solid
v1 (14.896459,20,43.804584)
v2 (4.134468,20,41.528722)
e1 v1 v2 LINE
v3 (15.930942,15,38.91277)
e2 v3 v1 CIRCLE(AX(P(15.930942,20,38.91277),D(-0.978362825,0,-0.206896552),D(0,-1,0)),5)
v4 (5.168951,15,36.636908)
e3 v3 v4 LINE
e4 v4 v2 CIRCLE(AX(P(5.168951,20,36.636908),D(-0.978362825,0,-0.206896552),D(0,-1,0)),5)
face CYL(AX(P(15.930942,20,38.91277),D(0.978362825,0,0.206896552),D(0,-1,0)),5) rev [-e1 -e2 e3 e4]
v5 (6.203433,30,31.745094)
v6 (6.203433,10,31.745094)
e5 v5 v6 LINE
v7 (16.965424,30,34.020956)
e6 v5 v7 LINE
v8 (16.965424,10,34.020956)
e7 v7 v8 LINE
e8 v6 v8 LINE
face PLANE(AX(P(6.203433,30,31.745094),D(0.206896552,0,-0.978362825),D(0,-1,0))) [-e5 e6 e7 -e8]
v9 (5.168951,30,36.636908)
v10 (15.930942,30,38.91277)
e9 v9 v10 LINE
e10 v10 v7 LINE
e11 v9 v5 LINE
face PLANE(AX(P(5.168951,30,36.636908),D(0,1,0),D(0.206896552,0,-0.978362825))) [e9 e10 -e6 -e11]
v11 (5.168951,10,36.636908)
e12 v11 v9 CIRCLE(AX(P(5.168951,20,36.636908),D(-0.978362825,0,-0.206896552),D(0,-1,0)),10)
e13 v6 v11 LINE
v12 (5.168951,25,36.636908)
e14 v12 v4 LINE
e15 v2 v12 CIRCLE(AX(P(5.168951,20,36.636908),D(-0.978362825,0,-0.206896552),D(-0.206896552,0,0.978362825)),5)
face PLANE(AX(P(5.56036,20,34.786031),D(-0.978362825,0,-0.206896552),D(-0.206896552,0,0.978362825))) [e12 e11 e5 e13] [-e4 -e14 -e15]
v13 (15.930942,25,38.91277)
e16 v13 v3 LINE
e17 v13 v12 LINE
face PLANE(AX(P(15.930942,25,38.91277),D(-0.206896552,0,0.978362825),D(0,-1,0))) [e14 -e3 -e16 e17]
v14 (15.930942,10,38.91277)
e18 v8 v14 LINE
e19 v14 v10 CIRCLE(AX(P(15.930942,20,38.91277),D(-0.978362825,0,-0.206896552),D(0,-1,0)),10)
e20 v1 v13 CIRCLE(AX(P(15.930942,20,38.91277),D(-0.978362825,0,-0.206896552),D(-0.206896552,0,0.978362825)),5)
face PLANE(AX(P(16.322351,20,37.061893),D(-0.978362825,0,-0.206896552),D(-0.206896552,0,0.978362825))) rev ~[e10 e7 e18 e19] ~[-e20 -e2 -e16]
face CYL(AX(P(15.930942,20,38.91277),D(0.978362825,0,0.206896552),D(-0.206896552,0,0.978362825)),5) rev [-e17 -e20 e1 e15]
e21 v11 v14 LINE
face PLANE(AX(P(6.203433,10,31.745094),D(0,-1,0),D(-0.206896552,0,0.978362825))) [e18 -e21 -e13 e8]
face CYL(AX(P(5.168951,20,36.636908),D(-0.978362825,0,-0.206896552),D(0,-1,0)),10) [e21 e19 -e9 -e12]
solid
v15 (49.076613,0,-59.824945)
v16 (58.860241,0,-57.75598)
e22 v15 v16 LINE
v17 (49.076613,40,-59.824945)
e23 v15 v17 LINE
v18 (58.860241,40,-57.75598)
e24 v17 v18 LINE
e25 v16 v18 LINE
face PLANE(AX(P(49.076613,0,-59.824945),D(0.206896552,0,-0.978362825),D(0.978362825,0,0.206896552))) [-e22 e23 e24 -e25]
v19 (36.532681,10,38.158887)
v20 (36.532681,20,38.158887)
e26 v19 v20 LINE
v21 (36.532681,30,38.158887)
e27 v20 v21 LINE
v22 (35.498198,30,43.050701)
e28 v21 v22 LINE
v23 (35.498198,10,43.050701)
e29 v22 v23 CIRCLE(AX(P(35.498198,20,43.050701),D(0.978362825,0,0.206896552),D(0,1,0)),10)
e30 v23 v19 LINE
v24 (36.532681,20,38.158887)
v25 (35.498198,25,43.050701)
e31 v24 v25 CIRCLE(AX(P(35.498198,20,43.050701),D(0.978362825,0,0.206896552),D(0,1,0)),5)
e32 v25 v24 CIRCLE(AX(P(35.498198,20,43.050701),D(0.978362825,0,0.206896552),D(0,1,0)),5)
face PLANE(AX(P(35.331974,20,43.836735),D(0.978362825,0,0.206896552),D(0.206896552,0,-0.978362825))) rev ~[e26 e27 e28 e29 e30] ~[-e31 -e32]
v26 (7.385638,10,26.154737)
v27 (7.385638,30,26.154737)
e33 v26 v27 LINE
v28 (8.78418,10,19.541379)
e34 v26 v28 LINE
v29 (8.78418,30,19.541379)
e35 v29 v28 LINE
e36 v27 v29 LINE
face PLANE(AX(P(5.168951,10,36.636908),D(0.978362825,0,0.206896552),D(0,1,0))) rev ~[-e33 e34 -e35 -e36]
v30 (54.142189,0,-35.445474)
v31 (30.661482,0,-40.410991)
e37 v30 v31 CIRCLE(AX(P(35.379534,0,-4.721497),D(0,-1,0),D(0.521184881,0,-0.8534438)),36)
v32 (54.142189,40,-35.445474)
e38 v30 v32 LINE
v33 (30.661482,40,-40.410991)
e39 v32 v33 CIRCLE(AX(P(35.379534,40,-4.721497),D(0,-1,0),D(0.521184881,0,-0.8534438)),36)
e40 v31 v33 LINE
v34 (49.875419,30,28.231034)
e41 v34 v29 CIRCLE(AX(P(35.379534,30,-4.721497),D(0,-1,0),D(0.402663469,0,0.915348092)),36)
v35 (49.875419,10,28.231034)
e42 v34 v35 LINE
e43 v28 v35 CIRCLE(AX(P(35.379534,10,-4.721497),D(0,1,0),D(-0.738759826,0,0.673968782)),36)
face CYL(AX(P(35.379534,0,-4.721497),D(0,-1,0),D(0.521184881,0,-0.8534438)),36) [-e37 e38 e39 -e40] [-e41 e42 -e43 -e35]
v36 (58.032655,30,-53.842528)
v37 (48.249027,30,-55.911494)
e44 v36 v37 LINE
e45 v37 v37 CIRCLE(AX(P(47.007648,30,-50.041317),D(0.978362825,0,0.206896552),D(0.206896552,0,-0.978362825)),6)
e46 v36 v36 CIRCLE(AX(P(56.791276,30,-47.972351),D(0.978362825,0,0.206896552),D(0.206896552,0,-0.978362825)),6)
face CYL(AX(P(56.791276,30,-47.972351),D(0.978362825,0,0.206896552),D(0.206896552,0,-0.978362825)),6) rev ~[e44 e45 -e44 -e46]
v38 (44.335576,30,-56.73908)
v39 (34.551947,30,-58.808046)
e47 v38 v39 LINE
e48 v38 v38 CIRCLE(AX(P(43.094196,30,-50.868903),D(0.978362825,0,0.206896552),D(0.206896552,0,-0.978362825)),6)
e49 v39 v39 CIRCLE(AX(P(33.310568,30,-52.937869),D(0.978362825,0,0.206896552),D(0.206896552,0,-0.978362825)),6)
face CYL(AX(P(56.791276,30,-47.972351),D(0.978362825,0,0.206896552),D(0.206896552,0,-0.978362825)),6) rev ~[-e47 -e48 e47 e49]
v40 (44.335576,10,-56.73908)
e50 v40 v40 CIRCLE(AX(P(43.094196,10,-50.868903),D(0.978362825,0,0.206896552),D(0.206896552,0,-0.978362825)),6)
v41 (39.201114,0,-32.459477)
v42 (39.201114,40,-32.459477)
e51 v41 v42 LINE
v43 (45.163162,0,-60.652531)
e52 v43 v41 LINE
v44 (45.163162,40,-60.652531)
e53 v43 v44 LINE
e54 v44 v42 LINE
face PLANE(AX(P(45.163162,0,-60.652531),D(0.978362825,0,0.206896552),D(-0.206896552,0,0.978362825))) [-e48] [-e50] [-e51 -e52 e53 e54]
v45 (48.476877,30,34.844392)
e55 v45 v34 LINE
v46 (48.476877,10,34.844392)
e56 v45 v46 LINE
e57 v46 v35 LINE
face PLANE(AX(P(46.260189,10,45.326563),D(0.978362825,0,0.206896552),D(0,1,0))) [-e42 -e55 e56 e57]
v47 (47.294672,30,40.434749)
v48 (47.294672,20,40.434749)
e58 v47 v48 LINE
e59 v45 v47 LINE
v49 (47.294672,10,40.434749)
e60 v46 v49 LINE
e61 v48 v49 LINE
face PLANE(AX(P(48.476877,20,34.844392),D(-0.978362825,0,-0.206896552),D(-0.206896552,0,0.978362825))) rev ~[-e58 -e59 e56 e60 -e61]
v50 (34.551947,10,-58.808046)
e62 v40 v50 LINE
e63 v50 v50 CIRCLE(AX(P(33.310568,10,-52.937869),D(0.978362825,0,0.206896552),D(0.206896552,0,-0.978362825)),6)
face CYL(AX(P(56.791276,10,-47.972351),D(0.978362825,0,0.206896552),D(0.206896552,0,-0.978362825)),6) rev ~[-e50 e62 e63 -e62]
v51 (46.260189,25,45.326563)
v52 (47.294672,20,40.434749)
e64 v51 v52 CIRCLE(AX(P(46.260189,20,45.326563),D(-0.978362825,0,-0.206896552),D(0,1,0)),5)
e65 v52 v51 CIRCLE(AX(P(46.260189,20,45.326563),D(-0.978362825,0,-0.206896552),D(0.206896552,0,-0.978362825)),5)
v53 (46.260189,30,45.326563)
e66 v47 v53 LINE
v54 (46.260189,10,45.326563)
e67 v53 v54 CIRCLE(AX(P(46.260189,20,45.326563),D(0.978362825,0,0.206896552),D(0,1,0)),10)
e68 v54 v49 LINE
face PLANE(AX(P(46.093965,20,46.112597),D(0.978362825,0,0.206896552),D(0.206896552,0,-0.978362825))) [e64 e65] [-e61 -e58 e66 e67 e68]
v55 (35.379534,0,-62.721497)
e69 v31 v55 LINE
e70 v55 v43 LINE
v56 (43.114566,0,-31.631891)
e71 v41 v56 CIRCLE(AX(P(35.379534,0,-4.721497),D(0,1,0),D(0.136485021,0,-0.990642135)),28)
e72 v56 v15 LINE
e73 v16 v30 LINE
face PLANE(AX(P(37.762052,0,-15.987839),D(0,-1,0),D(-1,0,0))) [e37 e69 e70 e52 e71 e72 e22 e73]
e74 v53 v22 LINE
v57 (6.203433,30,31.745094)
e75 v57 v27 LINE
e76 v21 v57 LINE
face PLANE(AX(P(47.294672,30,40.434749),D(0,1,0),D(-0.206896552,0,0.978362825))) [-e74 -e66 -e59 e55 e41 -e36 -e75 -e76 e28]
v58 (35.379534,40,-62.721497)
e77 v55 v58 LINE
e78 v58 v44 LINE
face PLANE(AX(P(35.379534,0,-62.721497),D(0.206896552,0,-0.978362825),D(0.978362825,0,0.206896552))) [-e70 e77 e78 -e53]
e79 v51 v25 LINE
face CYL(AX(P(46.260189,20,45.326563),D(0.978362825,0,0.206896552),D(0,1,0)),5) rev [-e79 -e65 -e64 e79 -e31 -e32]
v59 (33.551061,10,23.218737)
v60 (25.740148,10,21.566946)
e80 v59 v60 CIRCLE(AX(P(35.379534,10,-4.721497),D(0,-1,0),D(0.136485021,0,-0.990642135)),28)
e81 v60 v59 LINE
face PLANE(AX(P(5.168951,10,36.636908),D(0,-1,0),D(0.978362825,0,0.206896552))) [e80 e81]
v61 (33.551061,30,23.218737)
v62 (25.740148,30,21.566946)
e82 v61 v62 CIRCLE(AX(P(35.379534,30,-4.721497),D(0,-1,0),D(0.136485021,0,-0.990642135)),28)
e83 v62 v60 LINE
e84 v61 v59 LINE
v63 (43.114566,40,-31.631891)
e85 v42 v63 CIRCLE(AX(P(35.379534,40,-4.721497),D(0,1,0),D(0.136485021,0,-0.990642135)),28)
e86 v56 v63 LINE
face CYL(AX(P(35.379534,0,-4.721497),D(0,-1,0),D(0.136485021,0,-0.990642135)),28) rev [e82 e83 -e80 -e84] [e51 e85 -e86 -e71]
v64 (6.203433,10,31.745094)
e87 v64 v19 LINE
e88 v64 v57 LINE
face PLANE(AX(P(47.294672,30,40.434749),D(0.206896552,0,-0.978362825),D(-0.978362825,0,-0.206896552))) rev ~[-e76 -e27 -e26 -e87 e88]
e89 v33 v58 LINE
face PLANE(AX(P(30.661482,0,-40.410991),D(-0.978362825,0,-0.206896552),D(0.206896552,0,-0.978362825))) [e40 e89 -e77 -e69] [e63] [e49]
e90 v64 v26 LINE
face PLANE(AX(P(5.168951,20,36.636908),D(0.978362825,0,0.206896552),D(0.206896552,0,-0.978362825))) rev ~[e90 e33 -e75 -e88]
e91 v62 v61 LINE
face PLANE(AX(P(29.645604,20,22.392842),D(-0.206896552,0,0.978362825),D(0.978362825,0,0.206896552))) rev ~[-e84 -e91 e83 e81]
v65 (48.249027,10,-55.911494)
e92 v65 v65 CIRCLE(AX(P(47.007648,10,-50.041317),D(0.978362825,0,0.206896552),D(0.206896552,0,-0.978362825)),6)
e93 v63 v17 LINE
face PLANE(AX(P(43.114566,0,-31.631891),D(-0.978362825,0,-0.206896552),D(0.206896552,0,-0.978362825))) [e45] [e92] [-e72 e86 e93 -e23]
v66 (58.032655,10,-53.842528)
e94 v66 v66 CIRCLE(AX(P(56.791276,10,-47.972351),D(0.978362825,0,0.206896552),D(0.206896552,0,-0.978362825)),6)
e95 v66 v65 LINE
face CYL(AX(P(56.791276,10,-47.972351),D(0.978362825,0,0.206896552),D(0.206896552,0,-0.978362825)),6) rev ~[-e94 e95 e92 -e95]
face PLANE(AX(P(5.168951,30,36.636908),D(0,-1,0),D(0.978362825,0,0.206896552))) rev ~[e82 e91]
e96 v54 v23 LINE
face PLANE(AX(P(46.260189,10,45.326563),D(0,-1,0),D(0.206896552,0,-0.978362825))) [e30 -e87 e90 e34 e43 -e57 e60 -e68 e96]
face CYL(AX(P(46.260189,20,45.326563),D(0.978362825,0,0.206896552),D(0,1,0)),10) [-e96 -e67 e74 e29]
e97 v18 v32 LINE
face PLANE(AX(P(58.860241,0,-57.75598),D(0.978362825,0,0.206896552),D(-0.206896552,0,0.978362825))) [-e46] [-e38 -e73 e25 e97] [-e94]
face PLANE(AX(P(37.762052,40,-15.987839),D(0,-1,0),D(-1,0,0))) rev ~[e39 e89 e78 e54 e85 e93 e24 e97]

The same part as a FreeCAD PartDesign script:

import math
import FreeCAD as App
import Part
import Sketcher

V = App.Vector

doc = App.newDocument("Part")
params = doc.addObject("Spreadsheet::Sheet", "Params")
for row, (alias, value) in enumerate([
    ("sketch1_radius", "36 mm"),
    ("sketch1_radius2", "28 mm"),
    ("sketch1_length", "10 mm"),
    ("pad1_length", "40 mm"),
    ("sketch2_diameter", "12 mm"),
    ("pocket1_length", "40 mm"),
    ("sketch3_length", "42 mm"),
    ("pad2_length", "20 mm"),
    ("sketch4_width", "42 mm"),
    ("sketch4_height", "20 mm"),
    ("pad3_length", "19 mm"),
    ("sketch5_length", "42 mm"),
    ("sketch5_length2", "5 mm"),
    ("sketch6_radius", "10 mm"),
    ("sketch6_radius2", "5 mm"),
    ("sketch6_width", "5 mm"),
    ("pad4_length", "11 mm"),
    ("sketch7_radius", "5 mm"),
    ("sketch8_radius", "10 mm"),
    ("sketch8_width", "5 mm"),
    ("pad5_length", "11 mm"),
    ("sketch9_radius", "5 mm"),
    ("pocket4_length", "11 mm"),
], start=1):
    params.set(f"A{row}", alias)
    params.set(f"B{row}", "=" + value)
    params.setAlias(f"B{row}", alias)

body = doc.addObject("PartDesign::Body", "Body")

sketch1 = body.newObject("Sketcher::SketchObject", "Sketch")
sketch1.AttachmentSupport = (doc.getObject("XZ_Plane"), [""])
sketch1.MapMode = "FlatFace"
sketch1.addGeometry([
    Part.LineSegment(V(35.4, -62.7, 0), V(30.7, -40.4, 0)),
    Part.ArcOfCircle(Part.Circle(V(35.4, -4.7, 0), V(0, 0, 1), 36), math.radians(-59), math.radians(262)),
    Part.LineSegment(V(54.1, -35.4, 0), V(58.9, -57.8, 0)),
    Part.LineSegment(V(58.9, -57.8, 0), V(49.1, -59.8, 0)),
    Part.LineSegment(V(49.1, -59.8, 0), V(43.1, -31.6, 0)),
    Part.ArcOfCircle(Part.Circle(V(35.4, -4.7, 0), V(0, 0, 1), 28), math.radians(-74), math.radians(278)),
    Part.LineSegment(V(39.2, -32.5, 0), V(45.2, -60.7, 0)),
    Part.LineSegment(V(45.2, -60.7, 0), V(35.4, -62.7, 0)),
], False)
sketch1.addConstraint([
    Sketcher.Constraint("Coincident", 0, 2, 1, 2),
    Sketcher.Constraint("Coincident", 1, 1, 2, 1),
    Sketcher.Constraint("Coincident", 2, 2, 3, 1),
    Sketcher.Constraint("Coincident", 3, 2, 4, 1),
    Sketcher.Constraint("Coincident", 4, 2, 5, 1),
    Sketcher.Constraint("Coincident", 5, 2, 6, 1),
    Sketcher.Constraint("Coincident", 6, 2, 7, 1),
    Sketcher.Constraint("Coincident", 7, 2, 0, 1),
    Sketcher.Constraint("Coincident", 5, 3, 1, 3),
    Sketcher.Constraint("Parallel", 0, 2),
    Sketcher.Constraint("Perpendicular", 2, 3),
    Sketcher.Constraint("Perpendicular", 3, 4),
    Sketcher.Constraint("Parallel", 4, 6),
    Sketcher.Constraint("Perpendicular", 6, 7),
    Sketcher.Constraint("Vertical", 5, 3, 7, 2),
    Sketcher.Constraint("Equal", 0, 2),
    Sketcher.Constraint("Equal", 4, 6),
    Sketcher.Constraint("Equal", 3, 7),
    Sketcher.Constraint("Radius", 1, 36.0),
    Sketcher.Constraint("Radius", 5, 28.0),
    Sketcher.Constraint("Distance", 3, 10.0),
    Sketcher.Constraint("DistanceY", 0, 2, 4, 2, 8.7791),
    Sketcher.Constraint("Distance", 0, 22.803918),
    Sketcher.Constraint("DistanceX", -1, 1, 0, 2, 30.661482),
    Sketcher.Constraint("DistanceY", 0, 2, -1, 1, 40.410991),
])
sketch1.setExpression("Constraints[18]", "Params.sketch1_radius")
sketch1.setExpression("Constraints[19]", "Params.sketch1_radius2")
sketch1.setExpression("Constraints[20]", "Params.sketch1_length")
pad1 = body.newObject("PartDesign::Pad", "Pad")
pad1.Profile = sketch1
pad1.setExpression("Length", "Params.pad1_length")
pad1.Reversed = True

sketch2 = body.newObject("Sketcher::SketchObject", "Sketch001")
sketch2.Placement = App.Placement(V(44.6497, 0, 9.442171), App.Rotation(V(0.206896552, 0, -0.978362825), V(0, 1.000000001, 0), V(0.978362825, 0, 0.206896552), "ZXY"))
sketch2.addGeometry([
    Part.Circle(V(59, 30, 0), V(0, 0, 1), 6),
    Part.Circle(V(59, 10, 0), V(0, 0, 1), 6),
], False)
sketch2.addConstraint([
    Sketcher.Constraint("Equal", 0, 1),
    Sketcher.Constraint("Vertical", 0, 3, 1, 3),
    Sketcher.Constraint("Diameter", 0, 12.0),
    Sketcher.Constraint("DistanceY", -1, 1, 0, 3, 30.0),
    Sketcher.Constraint("DistanceY", -1, 1, 1, 3, 10.0),
    Sketcher.Constraint("DistanceX", -1, 1, 0, 3, 58.684284),
])
sketch2.setExpression("Constraints[2]", "Params.sketch2_diameter")
pocket1 = body.newObject("PartDesign::Pocket", "Pocket")
pocket1.Profile = sketch2
pocket1.setExpression("Length", "Params.pocket1_length")
body2 = doc.addObject("PartDesign::Body", "Body001")

sketch3 = body2.newObject("Sketcher::SketchObject", "Sketch002")
sketch3.AttachmentSupport = (doc.getObject("XZ_Plane001"), [""])
sketch3.MapMode = "FlatFace"
sketch3.AttachmentOffset = App.Placement(V(0, 0, -20), App.Rotation())
sketch3.addGeometry([
    Part.LineSegment(V(48, 35, 0), V(7, 26, 0)),
    Part.LineSegment(V(7, 26, 0), V(5, 37, 0)),
    Part.LineSegment(V(5, 37, 0), V(46, 45, 0)),
    Part.LineSegment(V(46, 45, 0), V(48, 35, 0)),
], False)
sketch3.addConstraint([
    Sketcher.Constraint("Coincident", 0, 2, 1, 1),
    Sketcher.Constraint("Coincident", 1, 2, 2, 1),
    Sketcher.Constraint("Coincident", 2, 2, 3, 1),
    Sketcher.Constraint("Coincident", 3, 2, 0, 1),
    Sketcher.Constraint("Perpendicular", 0, 1),
    Sketcher.Constraint("Perpendicular", 1, 2),
    Sketcher.Constraint("Perpendicular", 2, 3),
    Sketcher.Constraint("Distance", 0, 42.0),
    Sketcher.Constraint("Distance", 1, 10.713991),
    Sketcher.Constraint("DistanceX", -1, 1, 0, 2, 7.385638),
    Sketcher.Constraint("DistanceX", -1, 1, 1, 2, 5.168951),
    Sketcher.Constraint("DistanceY", -1, 1, 0, 2, 26.154737),
])
sketch3.setExpression("Constraints[7]", "Params.sketch3_length")
pad2 = body2.newObject("PartDesign::Pad", "Pad001")
pad2.Profile = sketch3
pad2.setExpression("Length", "Params.pad2_length")
pad2.Midplane = True
body.AllowCompound = True
doc.recompute()

boolean = body.newObject("PartDesign::Boolean", "Boolean")
boolean.Type = "Fuse"
boolean.addObjects([body2])

sketch4 = body.newObject("Sketcher::SketchObject", "Sketch003")
sketch4.Placement = App.Placement(V(-7.194776, 0, 34.022323), App.Rotation(V(0.978362825, 0, 0.206896552), V(0, 1.000000001, 0), V(-0.206896552, 0, 0.978362825), "ZXY"))
sketch4.addGeometry([
    Part.LineSegment(V(13, 30, 0), V(13, 10, 0)),
    Part.LineSegment(V(13, 10, 0), V(55, 10, 0)),
    Part.LineSegment(V(55, 10, 0), V(55, 30, 0)),
    Part.LineSegment(V(55, 30, 0), V(13, 30, 0)),
], False)
sketch4.addConstraint([
    Sketcher.Constraint("Coincident", 0, 2, 1, 1),
    Sketcher.Constraint("Coincident", 1, 2, 2, 1),
    Sketcher.Constraint("Coincident", 2, 2, 3, 1),
    Sketcher.Constraint("Coincident", 3, 2, 0, 1),
    Sketcher.Constraint("Vertical", 0),
    Sketcher.Constraint("Horizontal", 1),
    Sketcher.Constraint("Vertical", 2),
    Sketcher.Constraint("Horizontal", 3),
    Sketcher.Constraint("DistanceX", 1, 1, 1, 2, 42.0),
    Sketcher.Constraint("DistanceY", 0, 2, 0, 1, 20.0),
    Sketcher.Constraint("DistanceY", -1, 1, 0, 2, 10.0),
    Sketcher.Constraint("DistanceX", -1, 1, 0, 2, 12.637159),
])
sketch4.setExpression("Constraints[8]", "Params.sketch4_width")
sketch4.setExpression("Constraints[9]", "Params.sketch4_height")
pad3 = body.newObject("PartDesign::Pad", "Pad002")
pad3.Profile = sketch4
pad3.setExpression("Length", "Params.pad3_length")
pad3.Reversed = True

sketch5 = body.newObject("Sketcher::SketchObject", "Sketch004")
sketch5.AttachmentSupport = (doc.getObject("XZ_Plane"), [""])
sketch5.MapMode = "FlatFace"
sketch5.AttachmentOffset = App.Placement(V(0, 0, -30), App.Rotation())
sketch5.addGeometry([
    Part.LineSegment(V(47, 40, 0), V(6, 32, 0)),
    Part.LineSegment(V(6, 32, 0), V(5, 37, 0)),
    Part.LineSegment(V(5, 37, 0), V(46, 45, 0)),
    Part.LineSegment(V(46, 45, 0), V(47, 40, 0)),
], False)
sketch5.addConstraint([
    Sketcher.Constraint("Coincident", 0, 2, 1, 1),
    Sketcher.Constraint("Coincident", 1, 2, 2, 1),
    Sketcher.Constraint("Coincident", 2, 2, 3, 1),
    Sketcher.Constraint("Coincident", 3, 2, 0, 1),
    Sketcher.Constraint("Perpendicular", 0, 1),
    Sketcher.Constraint("Perpendicular", 1, 2),
    Sketcher.Constraint("Perpendicular", 2, 3),
    Sketcher.Constraint("Distance", 0, 42.0),
    Sketcher.Constraint("Distance", 1, 5.0),
    Sketcher.Constraint("DistanceX", -1, 1, 1, 2, 5.168951),
    Sketcher.Constraint("DistanceX", -1, 1, 2, 2, 46.260189),
    Sketcher.Constraint("DistanceY", -1, 1, 3, 2, 40.434749),
])
sketch5.setExpression("Constraints[7]", "Params.sketch5_length")
sketch5.setExpression("Constraints[8]", "Params.sketch5_length2")
pocket2 = body.newObject("PartDesign::Pocket", "Pocket001")
pocket2.Profile = sketch5
pocket2.Type = "ThroughAll"
pocket2.Reversed = True

sketch6 = body.newObject("Sketcher::SketchObject", "Sketch005")
sketch6.Placement = App.Placement(V(53.454965, 0, 11.30424), App.Rotation(V(0.206896552, 0, -0.978362825), V(0, 1.000000001, 0), V(0.978362825, 0, 0.206896552), "ZXY"))
sketch6.addGeometry([
    Part.ArcOfCircle(Part.Circle(V(-35, 20, 0), V(0, 0, 1), 10), math.radians(90), math.radians(270)),
    Part.LineSegment(V(-35, 10, 0), V(-30, 10, 0)),
    Part.LineSegment(V(-30, 10, 0), V(-30, 30, 0)),
    Part.LineSegment(V(-30, 30, 0), V(-35, 30, 0)),
    Part.ArcOfCircle(Part.Circle(V(-35, 20, 0), V(0, 0, 1), 5), math.radians(90), math.radians(270)),
    Part.LineSegment(V(-35, 25, 0), V(-35, 15, 0)),
], False)
sketch6.addConstraint([
    Sketcher.Constraint("Tangent", 0, 2, 1, 1),
    Sketcher.Constraint("Coincident", 1, 2, 2, 1),
    Sketcher.Constraint("Coincident", 2, 2, 3, 1),
    Sketcher.Constraint("Tangent", 3, 2, 0, 1),
    Sketcher.Constraint("Coincident", 4, 1, 5, 1),
    Sketcher.Constraint("Coincident", 5, 2, 4, 2),
    Sketcher.Constraint("Horizontal", 1),
    Sketcher.Constraint("Vertical", 2),
    Sketcher.Constraint("Horizontal", 3),
    Sketcher.Constraint("Vertical", 5),
    Sketcher.Constraint("Coincident", 4, 3, 0, 3),
    Sketcher.Constraint("Vertical", 3, 2, 4, 1),
    Sketcher.Constraint("Radius", 0, 10.0),
    Sketcher.Constraint("Radius", 4, 5.0),
    Sketcher.Constraint("DistanceX", 1, 1, 1, 2, 5.0),
    Sketcher.Constraint("DistanceY", -1, 1, 0, 3, 20.0),
    Sketcher.Constraint("DistanceX", 0, 3, -1, 1, 34.774751),
])
sketch6.setExpression("Constraints[12]", "Params.sketch6_radius")
sketch6.setExpression("Constraints[13]", "Params.sketch6_radius2")
sketch6.setExpression("Constraints[14]", "Params.sketch6_width")
pad4 = body.newObject("PartDesign::Pad", "Pad003")
pad4.Profile = sketch6
pad4.setExpression("Length", "Params.pad4_length")
pad4.Reversed = True

sketch7 = body.newObject("Sketcher::SketchObject", "Sketch006")
sketch7.Placement = App.Placement(V(53.454965, 0, 11.30424), App.Rotation(V(0.206896552, 0, -0.978362825), V(0, 1.000000001, 0), V(0.978362825, 0, 0.206896552), "ZXY"))
sketch7.addGeometry([
    Part.LineSegment(V(-35, 25, 0), V(-35, 15, 0)),
    Part.ArcOfCircle(Part.Circle(V(-35, 20, 0), V(0, 0, 1), 5), math.radians(-90), math.radians(90)),
], False)
sketch7.addConstraint([
    Sketcher.Constraint("Coincident", 0, 1, 1, 2),
    Sketcher.Constraint("Coincident", 1, 1, 0, 2),
    Sketcher.Constraint("Vertical", 0),
    Sketcher.Constraint("Vertical", 1, 3, 0, 1),
    Sketcher.Constraint("Radius", 1, 5.0),
    Sketcher.Constraint("DistanceY", -1, 1, 1, 3, 20.0),
    Sketcher.Constraint("DistanceX", 1, 3, -1, 1, 34.774751),
])
sketch7.setExpression("Constraints[4]", "Params.sketch7_radius")
pocket3 = body.newObject("PartDesign::Pocket", "Pocket002")
pocket3.Profile = sketch7
pocket3.Type = "ThroughAll"
body3 = doc.addObject("PartDesign::Body", "Body002")

sketch8 = body3.newObject("Sketcher::SketchObject", "Sketch007")
sketch8.Placement = App.Placement(V(12.363727, 0, 2.614585), App.Rotation(V(-0.206896552, 0, 0.978362825), V(0, 1.000000001, 0), V(-0.978362825, 0, -0.206896552), "ZXY"))
sketch8.addGeometry([
    Part.LineSegment(V(35, 30, 0), V(30, 30, 0)),
    Part.LineSegment(V(30, 30, 0), V(30, 10, 0)),
    Part.LineSegment(V(30, 10, 0), V(35, 10, 0)),
    Part.ArcOfCircle(Part.Circle(V(35, 20, 0), V(0, 0, 1), 10), math.radians(-90), math.radians(90)),
], False)
sketch8.addConstraint([
    Sketcher.Constraint("Coincident", 0, 2, 1, 1),
    Sketcher.Constraint("Coincident", 1, 2, 2, 1),
    Sketcher.Constraint("Tangent", 2, 2, 3, 1),
    Sketcher.Constraint("Tangent", 3, 2, 0, 1),
    Sketcher.Constraint("Horizontal", 0),
    Sketcher.Constraint("Vertical", 1),
    Sketcher.Constraint("Horizontal", 2),
    Sketcher.Constraint("Radius", 3, 10.0),
    Sketcher.Constraint("DistanceX", 0, 2, 0, 1, 5.0),
    Sketcher.Constraint("DistanceY", -1, 1, 3, 3, 20.0),
    Sketcher.Constraint("DistanceX", -1, 1, 3, 3, 34.774751),
])
sketch8.setExpression("Constraints[7]", "Params.sketch8_radius")
sketch8.setExpression("Constraints[8]", "Params.sketch8_width")
pad5 = body3.newObject("PartDesign::Pad", "Pad004")
pad5.Profile = sketch8
pad5.setExpression("Length", "Params.pad5_length")
pad5.Reversed = True

sketch9 = body3.newObject("Sketcher::SketchObject", "Sketch008")
sketch9.Placement = App.Placement(V(23.125718, 0, 4.890447), App.Rotation(V(-0.206896552, 0, 0.978362825), V(0, 1.000000001, 0), V(-0.978362825, 0, -0.206896552), "ZXY"))
sketch9.addGeometry([
    Part.ArcOfCircle(Part.Circle(V(35, 20, 0), V(0, 0, 1), 5), math.radians(0), math.radians(90)),
    Part.LineSegment(V(35, 25, 0), V(35, 15, 0)),
    Part.ArcOfCircle(Part.Circle(V(35, 20, 0), V(0, 0, 1), 5), math.radians(-90), math.radians(0)),
], False)
sketch9.addConstraint([
    Sketcher.Constraint("Coincident", 0, 2, 1, 1),
    Sketcher.Constraint("Coincident", 1, 2, 2, 1),
    Sketcher.Constraint("Tangent", 2, 2, 0, 1),
    Sketcher.Constraint("Vertical", 1),
    Sketcher.Constraint("Equal", 0, 2),
    Sketcher.Constraint("Horizontal", 0, 3, 2, 2),
    Sketcher.Constraint("Vertical", 2, 3, 0, 2),
    Sketcher.Constraint("Radius", 0, 5.0),
    Sketcher.Constraint("DistanceY", -1, 1, 0, 3, 20.0),
    Sketcher.Constraint("DistanceX", -1, 1, 0, 3, 34.774751),
])
sketch9.setExpression("Constraints[7]", "Params.sketch9_radius")
pocket4 = body3.newObject("PartDesign::Pocket", "Pocket003")
pocket4.Profile = sketch9
pocket4.setExpression("Length", "Params.pocket4_length")
pocket4.Reversed = True

doc.recompute()
